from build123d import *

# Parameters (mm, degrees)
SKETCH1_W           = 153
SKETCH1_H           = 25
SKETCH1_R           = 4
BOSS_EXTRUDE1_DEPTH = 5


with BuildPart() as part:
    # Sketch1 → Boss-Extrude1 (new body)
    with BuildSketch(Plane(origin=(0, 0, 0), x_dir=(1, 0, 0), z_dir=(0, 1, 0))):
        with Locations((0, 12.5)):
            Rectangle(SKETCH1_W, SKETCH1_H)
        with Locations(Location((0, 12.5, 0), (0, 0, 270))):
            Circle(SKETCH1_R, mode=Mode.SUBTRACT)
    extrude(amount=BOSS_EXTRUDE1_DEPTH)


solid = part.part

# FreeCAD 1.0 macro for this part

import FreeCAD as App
import Part
import Sketcher
from FreeCAD import Vector
Q = App.Units.Quantity


def add_polygon(sketch, points):
    """Adds a closed chain of lines whose ends are joined by coincident constraints."""
    first, n = sketch.GeometryCount, len(points)
    for a, b in zip(points, points[1:] + points[:1]):
        sketch.addGeometry(Part.LineSegment(App.Vector(*a, 0), App.Vector(*b, 0)), False)
    for i in range(n):
        sketch.addConstraint(Sketcher.Constraint("Coincident", first + i, 2, first + (i + 1) % n, 1))

doc = App.newDocument("Part")
body = doc.addObject("PartDesign::Body", "Body")

# Sketch on XZ plane
sketch1 = body.newObject("Sketcher::SketchObject", "Sketch")
sketch1.AttachmentSupport = (doc.getObject("XZ_Plane"), [""])
sketch1.MapMode = "FlatFace"
add_polygon(sketch1, [(-76.5, -25), (-76.5, 0), (76.5, 0), (76.5, -25)])  # lines 0-3
sketch1.addGeometry(Part.Circle(Vector(0, -12.5, 0), Vector(0, 0, 1), 4), False)  # 4
sketch1.addConstraint(Sketcher.Constraint("Vertical", 0))
sketch1.addConstraint(Sketcher.Constraint("Horizontal", 1))
sketch1.addConstraint(Sketcher.Constraint("Vertical", 2))
sketch1.addConstraint(Sketcher.Constraint("Horizontal", 3))
sketch1.addConstraint(Sketcher.Constraint("Symmetric", 0, 2, 1, 2, -1, 1))
sketch1.addConstraint(Sketcher.Constraint("PointOnObject", 4, 3, -2))
sketch1.addConstraint(Sketcher.Constraint("Diameter", 4, Q("8 mm")))
sketch1.addConstraint(Sketcher.Constraint("DistanceX", 1, 1, 1, 2, Q("153 mm")))
sketch1.addConstraint(Sketcher.Constraint("DistanceY", 0, 1, 0, 2, Q("25 mm")))
sketch1.addConstraint(Sketcher.Constraint("DistanceY", 4, 3, -1, 1, Q("12.5 mm")))
pad1 = body.newObject("PartDesign::Pad", "Pad")
pad1.Profile = sketch1
pad1.Length = 5
pad1.Reversed = True

doc.recompute()
